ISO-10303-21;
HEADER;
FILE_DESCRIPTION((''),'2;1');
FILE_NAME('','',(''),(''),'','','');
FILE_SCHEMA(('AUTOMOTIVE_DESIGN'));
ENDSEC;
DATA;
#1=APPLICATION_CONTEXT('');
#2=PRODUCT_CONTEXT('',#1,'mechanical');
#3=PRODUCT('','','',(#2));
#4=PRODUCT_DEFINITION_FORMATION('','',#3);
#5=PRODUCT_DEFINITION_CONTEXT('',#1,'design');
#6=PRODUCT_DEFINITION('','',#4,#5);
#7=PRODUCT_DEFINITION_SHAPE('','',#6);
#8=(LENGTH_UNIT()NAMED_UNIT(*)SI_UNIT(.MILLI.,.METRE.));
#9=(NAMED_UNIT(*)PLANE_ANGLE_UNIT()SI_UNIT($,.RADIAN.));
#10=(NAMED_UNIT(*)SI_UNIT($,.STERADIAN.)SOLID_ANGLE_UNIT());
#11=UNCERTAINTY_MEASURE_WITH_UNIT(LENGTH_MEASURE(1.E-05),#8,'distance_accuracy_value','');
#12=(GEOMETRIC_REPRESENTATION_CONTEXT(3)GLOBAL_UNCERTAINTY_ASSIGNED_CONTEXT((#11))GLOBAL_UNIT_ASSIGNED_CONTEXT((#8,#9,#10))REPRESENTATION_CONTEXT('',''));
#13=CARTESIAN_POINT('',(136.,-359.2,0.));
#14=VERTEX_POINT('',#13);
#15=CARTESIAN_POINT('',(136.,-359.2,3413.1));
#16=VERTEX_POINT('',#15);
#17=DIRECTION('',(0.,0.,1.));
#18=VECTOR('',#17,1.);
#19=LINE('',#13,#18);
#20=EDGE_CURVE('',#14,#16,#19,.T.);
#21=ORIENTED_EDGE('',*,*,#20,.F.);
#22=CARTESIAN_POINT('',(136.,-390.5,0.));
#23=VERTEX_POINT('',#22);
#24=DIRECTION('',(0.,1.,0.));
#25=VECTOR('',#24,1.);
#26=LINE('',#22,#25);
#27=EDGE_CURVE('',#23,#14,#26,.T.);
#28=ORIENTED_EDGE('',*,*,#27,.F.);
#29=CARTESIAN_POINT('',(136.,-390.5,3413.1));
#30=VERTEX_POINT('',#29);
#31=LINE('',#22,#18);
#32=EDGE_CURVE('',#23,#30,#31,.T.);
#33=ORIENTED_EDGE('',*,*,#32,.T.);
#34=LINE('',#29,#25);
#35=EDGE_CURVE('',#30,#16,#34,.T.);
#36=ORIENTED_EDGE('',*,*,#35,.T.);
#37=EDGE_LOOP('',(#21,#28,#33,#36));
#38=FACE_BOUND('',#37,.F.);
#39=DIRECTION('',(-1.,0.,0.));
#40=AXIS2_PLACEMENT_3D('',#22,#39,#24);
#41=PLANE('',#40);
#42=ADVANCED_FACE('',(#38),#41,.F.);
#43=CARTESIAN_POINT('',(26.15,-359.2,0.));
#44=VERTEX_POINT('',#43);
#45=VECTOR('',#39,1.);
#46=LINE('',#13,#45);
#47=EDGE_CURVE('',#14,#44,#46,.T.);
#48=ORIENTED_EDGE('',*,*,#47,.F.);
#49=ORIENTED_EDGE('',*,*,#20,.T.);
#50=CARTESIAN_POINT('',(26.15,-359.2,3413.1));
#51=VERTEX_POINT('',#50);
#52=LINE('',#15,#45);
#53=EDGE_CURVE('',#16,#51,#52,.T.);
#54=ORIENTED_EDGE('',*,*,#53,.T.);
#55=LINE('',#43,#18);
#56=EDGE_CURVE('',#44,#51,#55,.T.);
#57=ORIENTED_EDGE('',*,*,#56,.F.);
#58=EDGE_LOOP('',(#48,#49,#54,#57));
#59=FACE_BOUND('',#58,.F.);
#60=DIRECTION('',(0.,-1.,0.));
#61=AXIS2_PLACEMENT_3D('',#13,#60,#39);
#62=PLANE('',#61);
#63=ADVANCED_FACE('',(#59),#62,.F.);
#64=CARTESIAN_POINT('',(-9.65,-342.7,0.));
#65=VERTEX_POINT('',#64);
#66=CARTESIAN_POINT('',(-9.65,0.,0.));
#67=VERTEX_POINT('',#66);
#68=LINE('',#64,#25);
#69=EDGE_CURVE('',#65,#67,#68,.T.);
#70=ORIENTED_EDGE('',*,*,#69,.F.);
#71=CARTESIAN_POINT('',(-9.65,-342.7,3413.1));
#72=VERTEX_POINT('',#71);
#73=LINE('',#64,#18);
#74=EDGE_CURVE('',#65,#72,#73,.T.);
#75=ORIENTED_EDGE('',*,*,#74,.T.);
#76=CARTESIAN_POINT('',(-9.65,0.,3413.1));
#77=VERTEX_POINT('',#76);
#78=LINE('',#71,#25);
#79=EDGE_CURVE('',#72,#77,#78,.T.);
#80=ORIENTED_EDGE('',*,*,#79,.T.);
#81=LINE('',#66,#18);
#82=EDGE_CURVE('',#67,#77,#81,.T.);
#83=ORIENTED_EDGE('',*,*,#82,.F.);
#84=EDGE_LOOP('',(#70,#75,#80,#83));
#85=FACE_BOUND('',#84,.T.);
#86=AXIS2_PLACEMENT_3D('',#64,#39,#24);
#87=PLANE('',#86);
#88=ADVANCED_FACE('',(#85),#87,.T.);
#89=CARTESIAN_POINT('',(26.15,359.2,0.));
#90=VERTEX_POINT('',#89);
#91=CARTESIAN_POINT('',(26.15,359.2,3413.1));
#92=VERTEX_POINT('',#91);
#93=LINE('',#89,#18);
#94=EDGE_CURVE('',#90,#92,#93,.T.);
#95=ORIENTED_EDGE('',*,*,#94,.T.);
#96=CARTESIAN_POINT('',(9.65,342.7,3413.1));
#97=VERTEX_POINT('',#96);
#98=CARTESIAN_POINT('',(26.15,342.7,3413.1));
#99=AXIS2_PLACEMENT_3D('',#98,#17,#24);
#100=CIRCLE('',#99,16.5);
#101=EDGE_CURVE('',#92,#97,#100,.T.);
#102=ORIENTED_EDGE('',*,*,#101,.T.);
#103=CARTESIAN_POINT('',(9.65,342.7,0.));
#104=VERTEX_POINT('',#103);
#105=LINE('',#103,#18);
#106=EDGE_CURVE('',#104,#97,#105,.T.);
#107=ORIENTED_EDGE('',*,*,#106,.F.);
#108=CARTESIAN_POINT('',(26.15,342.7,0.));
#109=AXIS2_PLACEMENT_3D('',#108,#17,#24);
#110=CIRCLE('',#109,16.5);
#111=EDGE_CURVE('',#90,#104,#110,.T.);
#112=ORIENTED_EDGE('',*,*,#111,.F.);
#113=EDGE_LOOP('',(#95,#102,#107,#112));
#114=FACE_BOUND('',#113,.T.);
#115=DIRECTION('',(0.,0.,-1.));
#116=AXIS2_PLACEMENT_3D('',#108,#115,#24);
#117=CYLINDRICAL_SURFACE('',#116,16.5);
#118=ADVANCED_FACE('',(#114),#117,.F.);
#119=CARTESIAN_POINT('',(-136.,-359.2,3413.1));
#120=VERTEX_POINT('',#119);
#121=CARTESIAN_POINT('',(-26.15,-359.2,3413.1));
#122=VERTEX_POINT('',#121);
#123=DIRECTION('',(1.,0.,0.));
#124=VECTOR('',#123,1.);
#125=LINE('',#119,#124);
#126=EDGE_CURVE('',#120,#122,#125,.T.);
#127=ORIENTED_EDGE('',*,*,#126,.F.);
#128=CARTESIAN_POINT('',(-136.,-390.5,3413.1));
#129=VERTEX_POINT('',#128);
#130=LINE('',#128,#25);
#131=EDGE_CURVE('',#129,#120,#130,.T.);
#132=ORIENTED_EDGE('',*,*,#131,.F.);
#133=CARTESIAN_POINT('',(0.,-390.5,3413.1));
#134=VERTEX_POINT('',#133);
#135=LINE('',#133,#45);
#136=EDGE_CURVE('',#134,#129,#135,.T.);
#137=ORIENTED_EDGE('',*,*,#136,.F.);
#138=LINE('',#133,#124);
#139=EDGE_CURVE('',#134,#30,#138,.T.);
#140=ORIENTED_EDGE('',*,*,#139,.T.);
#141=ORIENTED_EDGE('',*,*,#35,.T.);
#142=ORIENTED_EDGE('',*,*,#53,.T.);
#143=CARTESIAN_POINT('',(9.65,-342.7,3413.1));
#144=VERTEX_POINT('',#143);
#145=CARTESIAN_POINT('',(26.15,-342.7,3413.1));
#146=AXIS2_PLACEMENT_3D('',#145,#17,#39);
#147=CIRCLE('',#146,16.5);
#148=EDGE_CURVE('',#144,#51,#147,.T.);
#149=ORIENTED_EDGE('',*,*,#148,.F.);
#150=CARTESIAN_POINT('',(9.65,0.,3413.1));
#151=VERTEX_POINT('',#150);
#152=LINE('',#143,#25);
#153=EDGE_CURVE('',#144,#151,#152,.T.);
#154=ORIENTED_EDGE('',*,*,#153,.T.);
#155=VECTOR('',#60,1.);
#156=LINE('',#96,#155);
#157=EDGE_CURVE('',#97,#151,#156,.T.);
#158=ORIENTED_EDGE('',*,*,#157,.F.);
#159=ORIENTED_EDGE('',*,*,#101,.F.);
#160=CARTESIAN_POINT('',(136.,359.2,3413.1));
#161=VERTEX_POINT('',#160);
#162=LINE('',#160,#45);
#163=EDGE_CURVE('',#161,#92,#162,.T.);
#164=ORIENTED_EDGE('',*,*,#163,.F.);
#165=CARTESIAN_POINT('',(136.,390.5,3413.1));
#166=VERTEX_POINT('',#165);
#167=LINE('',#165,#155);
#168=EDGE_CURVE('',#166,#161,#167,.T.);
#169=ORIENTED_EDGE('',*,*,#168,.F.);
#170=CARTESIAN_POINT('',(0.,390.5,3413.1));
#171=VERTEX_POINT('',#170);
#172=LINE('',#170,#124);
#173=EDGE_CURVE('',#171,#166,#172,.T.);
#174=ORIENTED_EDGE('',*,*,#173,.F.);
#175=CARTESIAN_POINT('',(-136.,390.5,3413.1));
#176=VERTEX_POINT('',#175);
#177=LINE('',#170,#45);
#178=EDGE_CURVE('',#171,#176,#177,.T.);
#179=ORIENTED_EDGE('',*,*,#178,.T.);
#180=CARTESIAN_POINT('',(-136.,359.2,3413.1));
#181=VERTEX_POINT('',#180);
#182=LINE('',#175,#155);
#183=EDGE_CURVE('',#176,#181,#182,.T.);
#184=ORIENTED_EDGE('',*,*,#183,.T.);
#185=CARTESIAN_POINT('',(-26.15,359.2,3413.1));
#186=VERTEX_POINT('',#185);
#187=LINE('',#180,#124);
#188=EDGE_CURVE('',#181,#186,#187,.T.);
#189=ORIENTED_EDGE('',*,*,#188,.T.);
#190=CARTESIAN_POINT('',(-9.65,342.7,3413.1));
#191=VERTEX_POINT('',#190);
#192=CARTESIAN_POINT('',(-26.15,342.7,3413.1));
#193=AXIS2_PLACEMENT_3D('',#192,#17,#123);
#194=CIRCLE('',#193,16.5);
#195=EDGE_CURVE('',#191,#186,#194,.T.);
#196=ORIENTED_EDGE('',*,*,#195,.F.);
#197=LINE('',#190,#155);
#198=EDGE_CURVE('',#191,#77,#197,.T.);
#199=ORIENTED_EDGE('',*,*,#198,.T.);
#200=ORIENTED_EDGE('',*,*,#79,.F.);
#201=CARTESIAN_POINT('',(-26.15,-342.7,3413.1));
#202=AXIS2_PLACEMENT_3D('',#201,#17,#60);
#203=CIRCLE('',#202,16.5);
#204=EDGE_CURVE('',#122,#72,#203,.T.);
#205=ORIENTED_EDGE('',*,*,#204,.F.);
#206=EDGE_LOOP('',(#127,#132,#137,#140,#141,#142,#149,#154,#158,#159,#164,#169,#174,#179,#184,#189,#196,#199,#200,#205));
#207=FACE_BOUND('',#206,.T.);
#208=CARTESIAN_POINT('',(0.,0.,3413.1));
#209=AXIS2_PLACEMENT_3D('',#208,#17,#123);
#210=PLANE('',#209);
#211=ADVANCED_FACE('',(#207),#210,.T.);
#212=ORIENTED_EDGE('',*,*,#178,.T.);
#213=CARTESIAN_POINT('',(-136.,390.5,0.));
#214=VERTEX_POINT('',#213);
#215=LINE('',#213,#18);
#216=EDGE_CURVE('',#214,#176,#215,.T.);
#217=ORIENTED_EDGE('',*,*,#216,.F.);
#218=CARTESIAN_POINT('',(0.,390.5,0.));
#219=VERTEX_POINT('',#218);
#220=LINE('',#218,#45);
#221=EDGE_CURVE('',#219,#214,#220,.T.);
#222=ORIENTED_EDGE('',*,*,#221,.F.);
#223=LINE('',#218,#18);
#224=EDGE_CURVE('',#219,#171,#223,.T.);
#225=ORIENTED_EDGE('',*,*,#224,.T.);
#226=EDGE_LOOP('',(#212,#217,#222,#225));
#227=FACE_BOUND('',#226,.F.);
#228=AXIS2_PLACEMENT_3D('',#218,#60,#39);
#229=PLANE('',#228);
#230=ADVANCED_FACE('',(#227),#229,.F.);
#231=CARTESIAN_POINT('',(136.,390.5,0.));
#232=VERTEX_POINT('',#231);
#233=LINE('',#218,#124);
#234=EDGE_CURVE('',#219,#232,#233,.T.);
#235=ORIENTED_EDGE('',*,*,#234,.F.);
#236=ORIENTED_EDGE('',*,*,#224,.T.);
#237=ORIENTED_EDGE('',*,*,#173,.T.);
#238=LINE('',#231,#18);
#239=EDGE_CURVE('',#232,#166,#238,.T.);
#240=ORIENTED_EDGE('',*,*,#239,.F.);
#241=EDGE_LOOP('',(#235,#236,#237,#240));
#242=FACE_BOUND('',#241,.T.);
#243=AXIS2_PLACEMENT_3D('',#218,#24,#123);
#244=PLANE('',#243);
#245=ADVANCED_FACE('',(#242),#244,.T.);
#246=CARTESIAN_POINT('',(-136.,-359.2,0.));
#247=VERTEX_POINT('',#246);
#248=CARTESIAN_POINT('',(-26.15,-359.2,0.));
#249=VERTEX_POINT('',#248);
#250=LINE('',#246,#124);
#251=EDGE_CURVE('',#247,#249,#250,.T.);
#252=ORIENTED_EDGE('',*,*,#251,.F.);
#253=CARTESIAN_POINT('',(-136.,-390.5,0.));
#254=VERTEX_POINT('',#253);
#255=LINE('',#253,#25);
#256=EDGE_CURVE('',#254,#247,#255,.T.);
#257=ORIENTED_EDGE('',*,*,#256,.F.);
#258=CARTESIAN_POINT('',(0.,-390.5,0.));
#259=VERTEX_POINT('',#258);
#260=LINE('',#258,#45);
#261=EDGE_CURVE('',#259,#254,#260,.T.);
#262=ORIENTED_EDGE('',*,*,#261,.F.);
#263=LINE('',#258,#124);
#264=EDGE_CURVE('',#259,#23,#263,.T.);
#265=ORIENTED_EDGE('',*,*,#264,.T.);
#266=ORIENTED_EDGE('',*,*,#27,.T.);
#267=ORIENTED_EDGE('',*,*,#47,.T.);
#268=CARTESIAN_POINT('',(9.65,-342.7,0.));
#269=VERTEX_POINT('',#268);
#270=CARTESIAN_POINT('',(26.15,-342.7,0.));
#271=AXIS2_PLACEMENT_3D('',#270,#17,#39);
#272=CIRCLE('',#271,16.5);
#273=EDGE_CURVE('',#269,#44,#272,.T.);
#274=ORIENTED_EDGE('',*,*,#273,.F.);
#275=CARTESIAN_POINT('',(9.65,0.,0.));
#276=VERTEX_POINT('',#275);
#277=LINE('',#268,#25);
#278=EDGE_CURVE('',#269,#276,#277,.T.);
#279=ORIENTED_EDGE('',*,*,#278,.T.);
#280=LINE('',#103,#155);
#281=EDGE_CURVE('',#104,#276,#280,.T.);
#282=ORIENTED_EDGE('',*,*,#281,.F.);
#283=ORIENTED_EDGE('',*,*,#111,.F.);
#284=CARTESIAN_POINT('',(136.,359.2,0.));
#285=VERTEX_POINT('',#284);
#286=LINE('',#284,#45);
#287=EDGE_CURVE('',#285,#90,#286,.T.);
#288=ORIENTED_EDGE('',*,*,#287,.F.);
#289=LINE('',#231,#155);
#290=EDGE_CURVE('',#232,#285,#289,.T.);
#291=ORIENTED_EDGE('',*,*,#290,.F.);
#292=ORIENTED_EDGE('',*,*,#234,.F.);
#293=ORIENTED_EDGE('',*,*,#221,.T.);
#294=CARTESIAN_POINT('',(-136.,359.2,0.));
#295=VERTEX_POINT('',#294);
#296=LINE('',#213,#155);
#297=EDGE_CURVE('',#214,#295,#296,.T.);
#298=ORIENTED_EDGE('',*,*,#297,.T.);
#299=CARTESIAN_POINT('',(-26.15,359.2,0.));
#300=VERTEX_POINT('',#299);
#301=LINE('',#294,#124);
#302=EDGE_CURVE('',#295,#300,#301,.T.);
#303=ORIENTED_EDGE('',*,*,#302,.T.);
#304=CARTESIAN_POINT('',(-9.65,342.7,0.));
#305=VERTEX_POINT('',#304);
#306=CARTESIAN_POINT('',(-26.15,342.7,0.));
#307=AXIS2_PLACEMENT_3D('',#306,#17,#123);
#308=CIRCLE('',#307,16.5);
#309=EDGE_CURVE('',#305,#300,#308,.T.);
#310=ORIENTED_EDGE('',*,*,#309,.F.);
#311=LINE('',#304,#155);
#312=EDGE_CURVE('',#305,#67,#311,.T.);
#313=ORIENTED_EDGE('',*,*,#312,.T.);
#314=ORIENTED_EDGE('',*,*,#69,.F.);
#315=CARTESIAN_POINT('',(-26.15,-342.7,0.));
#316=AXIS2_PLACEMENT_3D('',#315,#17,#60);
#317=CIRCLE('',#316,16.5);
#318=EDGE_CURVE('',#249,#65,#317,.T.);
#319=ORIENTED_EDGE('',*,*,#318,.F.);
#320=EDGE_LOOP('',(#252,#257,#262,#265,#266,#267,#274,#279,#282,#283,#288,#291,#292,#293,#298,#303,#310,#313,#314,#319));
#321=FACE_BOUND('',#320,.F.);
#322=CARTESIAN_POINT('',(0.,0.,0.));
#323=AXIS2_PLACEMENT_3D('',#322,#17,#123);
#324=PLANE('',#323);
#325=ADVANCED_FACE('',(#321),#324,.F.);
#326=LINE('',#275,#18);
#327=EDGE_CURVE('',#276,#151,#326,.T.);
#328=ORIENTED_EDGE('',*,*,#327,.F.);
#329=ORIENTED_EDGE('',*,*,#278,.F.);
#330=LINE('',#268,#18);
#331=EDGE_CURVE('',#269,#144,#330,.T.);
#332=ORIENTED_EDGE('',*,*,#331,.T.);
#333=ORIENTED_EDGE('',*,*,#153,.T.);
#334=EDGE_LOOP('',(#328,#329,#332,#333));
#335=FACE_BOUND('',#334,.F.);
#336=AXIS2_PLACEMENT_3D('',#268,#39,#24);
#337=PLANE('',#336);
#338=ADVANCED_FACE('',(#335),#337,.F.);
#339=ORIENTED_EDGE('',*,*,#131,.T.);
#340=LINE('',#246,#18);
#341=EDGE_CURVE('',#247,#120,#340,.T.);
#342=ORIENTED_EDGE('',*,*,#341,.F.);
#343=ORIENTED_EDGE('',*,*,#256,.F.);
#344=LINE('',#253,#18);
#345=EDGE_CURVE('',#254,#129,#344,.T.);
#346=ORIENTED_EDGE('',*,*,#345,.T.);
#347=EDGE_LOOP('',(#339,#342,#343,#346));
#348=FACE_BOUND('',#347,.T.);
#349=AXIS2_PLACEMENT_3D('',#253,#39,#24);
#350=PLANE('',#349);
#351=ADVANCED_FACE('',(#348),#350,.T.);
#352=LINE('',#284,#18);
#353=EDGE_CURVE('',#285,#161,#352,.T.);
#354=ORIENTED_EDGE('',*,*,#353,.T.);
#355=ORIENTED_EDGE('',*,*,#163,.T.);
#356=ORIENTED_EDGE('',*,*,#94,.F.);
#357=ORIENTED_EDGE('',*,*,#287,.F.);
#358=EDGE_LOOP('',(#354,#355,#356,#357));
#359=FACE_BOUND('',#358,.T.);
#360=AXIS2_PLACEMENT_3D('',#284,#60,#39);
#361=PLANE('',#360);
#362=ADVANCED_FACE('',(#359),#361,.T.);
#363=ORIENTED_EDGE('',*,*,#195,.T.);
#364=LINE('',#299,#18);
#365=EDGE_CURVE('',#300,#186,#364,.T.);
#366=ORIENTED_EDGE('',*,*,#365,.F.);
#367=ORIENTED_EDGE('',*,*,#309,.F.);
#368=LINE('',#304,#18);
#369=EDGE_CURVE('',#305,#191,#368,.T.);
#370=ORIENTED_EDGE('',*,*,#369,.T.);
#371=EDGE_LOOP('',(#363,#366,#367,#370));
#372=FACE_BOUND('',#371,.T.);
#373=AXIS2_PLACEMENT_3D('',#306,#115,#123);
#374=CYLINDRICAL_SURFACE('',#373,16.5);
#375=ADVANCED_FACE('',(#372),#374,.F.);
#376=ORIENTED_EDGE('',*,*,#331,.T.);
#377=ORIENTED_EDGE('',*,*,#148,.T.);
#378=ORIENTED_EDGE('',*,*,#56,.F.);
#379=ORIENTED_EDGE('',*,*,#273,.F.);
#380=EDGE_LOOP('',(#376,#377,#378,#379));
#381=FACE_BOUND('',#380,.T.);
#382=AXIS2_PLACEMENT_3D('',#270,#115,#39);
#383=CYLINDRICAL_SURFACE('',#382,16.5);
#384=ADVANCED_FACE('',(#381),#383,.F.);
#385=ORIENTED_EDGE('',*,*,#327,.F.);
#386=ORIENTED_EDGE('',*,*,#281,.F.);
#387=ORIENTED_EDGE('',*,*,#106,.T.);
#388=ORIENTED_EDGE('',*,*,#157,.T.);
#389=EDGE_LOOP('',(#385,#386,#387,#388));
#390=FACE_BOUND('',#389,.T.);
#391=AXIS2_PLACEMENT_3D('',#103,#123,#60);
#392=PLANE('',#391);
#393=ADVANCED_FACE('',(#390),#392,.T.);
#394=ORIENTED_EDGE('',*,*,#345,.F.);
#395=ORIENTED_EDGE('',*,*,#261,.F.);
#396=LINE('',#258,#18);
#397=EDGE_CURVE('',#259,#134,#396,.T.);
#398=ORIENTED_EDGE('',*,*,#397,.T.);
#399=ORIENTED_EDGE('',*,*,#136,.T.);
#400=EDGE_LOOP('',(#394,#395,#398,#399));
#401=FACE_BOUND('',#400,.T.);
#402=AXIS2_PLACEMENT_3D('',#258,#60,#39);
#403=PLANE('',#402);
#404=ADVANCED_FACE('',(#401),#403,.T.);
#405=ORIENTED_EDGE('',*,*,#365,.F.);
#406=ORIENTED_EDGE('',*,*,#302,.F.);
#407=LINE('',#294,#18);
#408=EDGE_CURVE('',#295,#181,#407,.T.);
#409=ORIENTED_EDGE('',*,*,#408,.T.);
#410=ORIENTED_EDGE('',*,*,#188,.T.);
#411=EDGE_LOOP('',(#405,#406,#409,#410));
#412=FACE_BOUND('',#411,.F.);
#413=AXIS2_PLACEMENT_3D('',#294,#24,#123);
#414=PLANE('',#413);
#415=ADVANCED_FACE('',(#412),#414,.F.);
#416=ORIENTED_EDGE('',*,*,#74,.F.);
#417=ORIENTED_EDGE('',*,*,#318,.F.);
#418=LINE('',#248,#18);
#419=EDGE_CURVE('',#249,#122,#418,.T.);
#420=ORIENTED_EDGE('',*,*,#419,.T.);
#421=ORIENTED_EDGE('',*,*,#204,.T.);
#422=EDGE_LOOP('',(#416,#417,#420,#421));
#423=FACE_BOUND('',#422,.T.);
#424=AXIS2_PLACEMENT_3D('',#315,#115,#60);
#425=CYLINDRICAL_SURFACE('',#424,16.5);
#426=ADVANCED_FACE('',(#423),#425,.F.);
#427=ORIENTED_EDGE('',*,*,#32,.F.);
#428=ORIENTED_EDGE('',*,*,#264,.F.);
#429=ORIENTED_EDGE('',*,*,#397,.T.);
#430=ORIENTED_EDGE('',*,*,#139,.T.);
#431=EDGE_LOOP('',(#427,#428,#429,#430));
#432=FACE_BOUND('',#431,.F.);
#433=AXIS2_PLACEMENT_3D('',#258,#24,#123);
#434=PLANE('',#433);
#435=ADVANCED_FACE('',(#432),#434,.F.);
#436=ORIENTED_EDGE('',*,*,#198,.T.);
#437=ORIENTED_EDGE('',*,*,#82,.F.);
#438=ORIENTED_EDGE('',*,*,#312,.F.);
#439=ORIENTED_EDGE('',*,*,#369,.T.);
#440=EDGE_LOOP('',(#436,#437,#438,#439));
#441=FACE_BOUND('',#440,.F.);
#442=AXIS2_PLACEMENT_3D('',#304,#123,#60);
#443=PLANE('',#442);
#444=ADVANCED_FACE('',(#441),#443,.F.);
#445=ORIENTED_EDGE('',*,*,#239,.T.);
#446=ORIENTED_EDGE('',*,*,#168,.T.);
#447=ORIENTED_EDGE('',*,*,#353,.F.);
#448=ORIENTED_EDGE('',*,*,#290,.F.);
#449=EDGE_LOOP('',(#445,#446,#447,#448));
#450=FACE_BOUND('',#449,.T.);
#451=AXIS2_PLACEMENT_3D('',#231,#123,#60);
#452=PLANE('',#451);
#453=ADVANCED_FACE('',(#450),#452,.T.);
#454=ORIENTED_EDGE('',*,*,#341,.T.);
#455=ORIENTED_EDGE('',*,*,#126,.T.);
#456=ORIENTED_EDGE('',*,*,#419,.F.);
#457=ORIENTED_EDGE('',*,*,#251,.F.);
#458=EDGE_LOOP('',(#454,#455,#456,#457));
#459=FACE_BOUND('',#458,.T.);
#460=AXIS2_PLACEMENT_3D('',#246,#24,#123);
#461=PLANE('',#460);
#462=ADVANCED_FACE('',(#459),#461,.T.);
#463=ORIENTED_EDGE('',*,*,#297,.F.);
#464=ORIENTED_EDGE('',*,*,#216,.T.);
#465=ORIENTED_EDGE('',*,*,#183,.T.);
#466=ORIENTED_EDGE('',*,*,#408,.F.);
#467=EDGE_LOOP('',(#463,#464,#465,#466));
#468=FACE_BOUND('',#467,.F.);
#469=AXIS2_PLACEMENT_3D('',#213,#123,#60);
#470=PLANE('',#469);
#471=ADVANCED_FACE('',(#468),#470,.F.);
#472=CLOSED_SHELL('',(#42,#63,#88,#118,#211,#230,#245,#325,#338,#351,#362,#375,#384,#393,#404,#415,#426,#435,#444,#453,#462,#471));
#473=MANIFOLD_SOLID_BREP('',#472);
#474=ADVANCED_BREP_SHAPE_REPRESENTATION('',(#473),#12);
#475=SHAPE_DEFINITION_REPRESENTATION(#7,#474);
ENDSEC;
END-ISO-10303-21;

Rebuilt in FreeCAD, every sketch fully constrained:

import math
import FreeCAD as App
import Part
import Sketcher

doc = App.newDocument("Part")
body = doc.addObject("PartDesign::Body", "Body")

# Sketch on XY plane
sketch1 = body.newObject("Sketcher::SketchObject", "Sketch")
sketch1.AttachmentSupport = (doc.getObject("XY_Plane"), [""])
sketch1.MapMode = "FlatFace"
sketch1.addGeometry([
    Part.LineSegment(App.Vector(-136, -359, 0), App.Vector(-136, -390, 0)),  # 0
    Part.LineSegment(App.Vector(-136, -390, 0), App.Vector(136, -390, 0)),  # 1
    Part.LineSegment(App.Vector(136, -390, 0), App.Vector(136, -359, 0)),  # 2
    Part.LineSegment(App.Vector(136, -359, 0), App.Vector(26, -359, 0)),  # 3
    Part.ArcOfCircle(Part.Circle(App.Vector(26, -343, 0), App.Vector(0, 0, 1), 16), math.radians(180), math.radians(270)),  # 4
    Part.LineSegment(App.Vector(10, -343, 0), App.Vector(10, 343, 0)),  # 5
    Part.ArcOfCircle(Part.Circle(App.Vector(26, 343, 0), App.Vector(0, 0, 1), 16), math.radians(90), math.radians(180)),  # 6
    Part.LineSegment(App.Vector(26, 359, 0), App.Vector(136, 359, 0)),  # 7
    Part.LineSegment(App.Vector(136, 359, 0), App.Vector(136, 390, 0)),  # 8
    Part.LineSegment(App.Vector(136, 390, 0), App.Vector(-136, 390, 0)),  # 9
    Part.LineSegment(App.Vector(-136, 390, 0), App.Vector(-136, 359, 0)),  # 10
    Part.LineSegment(App.Vector(-136, 359, 0), App.Vector(-26, 359, 0)),  # 11
    Part.ArcOfCircle(Part.Circle(App.Vector(-26, 343, 0), App.Vector(0, 0, 1), 16), math.radians(0), math.radians(90)),  # 12
    Part.LineSegment(App.Vector(-10, 343, 0), App.Vector(-10, -343, 0)),  # 13
    Part.ArcOfCircle(Part.Circle(App.Vector(-26, -343, 0), App.Vector(0, 0, 1), 16), math.radians(-90), math.radians(0)),  # 14
    Part.LineSegment(App.Vector(-26, -359, 0), App.Vector(-136, -359, 0)),  # 15
], False)
sketch1.addConstraint([
    Sketcher.Constraint("Coincident", 0, 2, 1, 1),
    Sketcher.Constraint("Coincident", 1, 2, 2, 1),
    Sketcher.Constraint("Coincident", 2, 2, 3, 1),
    Sketcher.Constraint("Tangent", 3, 2, 4, 2),
    Sketcher.Constraint("Tangent", 4, 1, 5, 1),
    Sketcher.Constraint("Tangent", 5, 2, 6, 2),
    Sketcher.Constraint("Tangent", 6, 1, 7, 1),
    Sketcher.Constraint("Coincident", 7, 2, 8, 1),
    Sketcher.Constraint("Coincident", 8, 2, 9, 1),
    Sketcher.Constraint("Coincident", 9, 2, 10, 1),
    Sketcher.Constraint("Coincident", 10, 2, 11, 1),
    Sketcher.Constraint("Tangent", 11, 2, 12, 2),
    Sketcher.Constraint("Tangent", 12, 1, 13, 1),
    Sketcher.Constraint("Tangent", 13, 2, 14, 2),
    Sketcher.Constraint("Tangent", 14, 1, 15, 1),
    Sketcher.Constraint("Coincident", 15, 2, 0, 1),
    Sketcher.Constraint("Vertical", 0),
    Sketcher.Constraint("Horizontal", 1),
    Sketcher.Constraint("Vertical", 2),
    Sketcher.Constraint("Horizontal", 3),
    Sketcher.Constraint("Vertical", 5),
    Sketcher.Constraint("Horizontal", 7),
    Sketcher.Constraint("Vertical", 8),
    Sketcher.Constraint("Horizontal", 9),
    Sketcher.Constraint("Vertical", 10),
    Sketcher.Constraint("Horizontal", 11),
    Sketcher.Constraint("Vertical", 13),
    Sketcher.Constraint("Horizontal", 15),
    Sketcher.Constraint("Equal", 4, 6),
    Sketcher.Constraint("Equal", 6, 12),
    Sketcher.Constraint("Equal", 12, 14),
    Sketcher.Constraint("Symmetric", 4, 3, 12, 3, -1, 1),
    Sketcher.Constraint("Symmetric", 0, 2, 8, 2, -1, 1),
    Sketcher.Constraint("Symmetric", 7, 2, 10, 2, -2),
    Sketcher.Constraint("Symmetric", 2, 2, 15, 2, -2),
    Sketcher.Constraint("Radius", 4, 16.5),
    Sketcher.Constraint("DistanceY", 0, 2, 0, 1, 31.3),
    Sketcher.Constraint("DistanceX", 0, 2, -1, 1, 136.0),
    Sketcher.Constraint("DistanceY", 0, 2, -1, 1, 390.5),
    Sketcher.Constraint("DistanceX", -1, 1, 4, 1, 9.65),
])
pad1 = body.newObject("PartDesign::Pad", "Pad")
pad1.Profile = sketch1
pad1.Length = 3413.1

doc.recompute()
